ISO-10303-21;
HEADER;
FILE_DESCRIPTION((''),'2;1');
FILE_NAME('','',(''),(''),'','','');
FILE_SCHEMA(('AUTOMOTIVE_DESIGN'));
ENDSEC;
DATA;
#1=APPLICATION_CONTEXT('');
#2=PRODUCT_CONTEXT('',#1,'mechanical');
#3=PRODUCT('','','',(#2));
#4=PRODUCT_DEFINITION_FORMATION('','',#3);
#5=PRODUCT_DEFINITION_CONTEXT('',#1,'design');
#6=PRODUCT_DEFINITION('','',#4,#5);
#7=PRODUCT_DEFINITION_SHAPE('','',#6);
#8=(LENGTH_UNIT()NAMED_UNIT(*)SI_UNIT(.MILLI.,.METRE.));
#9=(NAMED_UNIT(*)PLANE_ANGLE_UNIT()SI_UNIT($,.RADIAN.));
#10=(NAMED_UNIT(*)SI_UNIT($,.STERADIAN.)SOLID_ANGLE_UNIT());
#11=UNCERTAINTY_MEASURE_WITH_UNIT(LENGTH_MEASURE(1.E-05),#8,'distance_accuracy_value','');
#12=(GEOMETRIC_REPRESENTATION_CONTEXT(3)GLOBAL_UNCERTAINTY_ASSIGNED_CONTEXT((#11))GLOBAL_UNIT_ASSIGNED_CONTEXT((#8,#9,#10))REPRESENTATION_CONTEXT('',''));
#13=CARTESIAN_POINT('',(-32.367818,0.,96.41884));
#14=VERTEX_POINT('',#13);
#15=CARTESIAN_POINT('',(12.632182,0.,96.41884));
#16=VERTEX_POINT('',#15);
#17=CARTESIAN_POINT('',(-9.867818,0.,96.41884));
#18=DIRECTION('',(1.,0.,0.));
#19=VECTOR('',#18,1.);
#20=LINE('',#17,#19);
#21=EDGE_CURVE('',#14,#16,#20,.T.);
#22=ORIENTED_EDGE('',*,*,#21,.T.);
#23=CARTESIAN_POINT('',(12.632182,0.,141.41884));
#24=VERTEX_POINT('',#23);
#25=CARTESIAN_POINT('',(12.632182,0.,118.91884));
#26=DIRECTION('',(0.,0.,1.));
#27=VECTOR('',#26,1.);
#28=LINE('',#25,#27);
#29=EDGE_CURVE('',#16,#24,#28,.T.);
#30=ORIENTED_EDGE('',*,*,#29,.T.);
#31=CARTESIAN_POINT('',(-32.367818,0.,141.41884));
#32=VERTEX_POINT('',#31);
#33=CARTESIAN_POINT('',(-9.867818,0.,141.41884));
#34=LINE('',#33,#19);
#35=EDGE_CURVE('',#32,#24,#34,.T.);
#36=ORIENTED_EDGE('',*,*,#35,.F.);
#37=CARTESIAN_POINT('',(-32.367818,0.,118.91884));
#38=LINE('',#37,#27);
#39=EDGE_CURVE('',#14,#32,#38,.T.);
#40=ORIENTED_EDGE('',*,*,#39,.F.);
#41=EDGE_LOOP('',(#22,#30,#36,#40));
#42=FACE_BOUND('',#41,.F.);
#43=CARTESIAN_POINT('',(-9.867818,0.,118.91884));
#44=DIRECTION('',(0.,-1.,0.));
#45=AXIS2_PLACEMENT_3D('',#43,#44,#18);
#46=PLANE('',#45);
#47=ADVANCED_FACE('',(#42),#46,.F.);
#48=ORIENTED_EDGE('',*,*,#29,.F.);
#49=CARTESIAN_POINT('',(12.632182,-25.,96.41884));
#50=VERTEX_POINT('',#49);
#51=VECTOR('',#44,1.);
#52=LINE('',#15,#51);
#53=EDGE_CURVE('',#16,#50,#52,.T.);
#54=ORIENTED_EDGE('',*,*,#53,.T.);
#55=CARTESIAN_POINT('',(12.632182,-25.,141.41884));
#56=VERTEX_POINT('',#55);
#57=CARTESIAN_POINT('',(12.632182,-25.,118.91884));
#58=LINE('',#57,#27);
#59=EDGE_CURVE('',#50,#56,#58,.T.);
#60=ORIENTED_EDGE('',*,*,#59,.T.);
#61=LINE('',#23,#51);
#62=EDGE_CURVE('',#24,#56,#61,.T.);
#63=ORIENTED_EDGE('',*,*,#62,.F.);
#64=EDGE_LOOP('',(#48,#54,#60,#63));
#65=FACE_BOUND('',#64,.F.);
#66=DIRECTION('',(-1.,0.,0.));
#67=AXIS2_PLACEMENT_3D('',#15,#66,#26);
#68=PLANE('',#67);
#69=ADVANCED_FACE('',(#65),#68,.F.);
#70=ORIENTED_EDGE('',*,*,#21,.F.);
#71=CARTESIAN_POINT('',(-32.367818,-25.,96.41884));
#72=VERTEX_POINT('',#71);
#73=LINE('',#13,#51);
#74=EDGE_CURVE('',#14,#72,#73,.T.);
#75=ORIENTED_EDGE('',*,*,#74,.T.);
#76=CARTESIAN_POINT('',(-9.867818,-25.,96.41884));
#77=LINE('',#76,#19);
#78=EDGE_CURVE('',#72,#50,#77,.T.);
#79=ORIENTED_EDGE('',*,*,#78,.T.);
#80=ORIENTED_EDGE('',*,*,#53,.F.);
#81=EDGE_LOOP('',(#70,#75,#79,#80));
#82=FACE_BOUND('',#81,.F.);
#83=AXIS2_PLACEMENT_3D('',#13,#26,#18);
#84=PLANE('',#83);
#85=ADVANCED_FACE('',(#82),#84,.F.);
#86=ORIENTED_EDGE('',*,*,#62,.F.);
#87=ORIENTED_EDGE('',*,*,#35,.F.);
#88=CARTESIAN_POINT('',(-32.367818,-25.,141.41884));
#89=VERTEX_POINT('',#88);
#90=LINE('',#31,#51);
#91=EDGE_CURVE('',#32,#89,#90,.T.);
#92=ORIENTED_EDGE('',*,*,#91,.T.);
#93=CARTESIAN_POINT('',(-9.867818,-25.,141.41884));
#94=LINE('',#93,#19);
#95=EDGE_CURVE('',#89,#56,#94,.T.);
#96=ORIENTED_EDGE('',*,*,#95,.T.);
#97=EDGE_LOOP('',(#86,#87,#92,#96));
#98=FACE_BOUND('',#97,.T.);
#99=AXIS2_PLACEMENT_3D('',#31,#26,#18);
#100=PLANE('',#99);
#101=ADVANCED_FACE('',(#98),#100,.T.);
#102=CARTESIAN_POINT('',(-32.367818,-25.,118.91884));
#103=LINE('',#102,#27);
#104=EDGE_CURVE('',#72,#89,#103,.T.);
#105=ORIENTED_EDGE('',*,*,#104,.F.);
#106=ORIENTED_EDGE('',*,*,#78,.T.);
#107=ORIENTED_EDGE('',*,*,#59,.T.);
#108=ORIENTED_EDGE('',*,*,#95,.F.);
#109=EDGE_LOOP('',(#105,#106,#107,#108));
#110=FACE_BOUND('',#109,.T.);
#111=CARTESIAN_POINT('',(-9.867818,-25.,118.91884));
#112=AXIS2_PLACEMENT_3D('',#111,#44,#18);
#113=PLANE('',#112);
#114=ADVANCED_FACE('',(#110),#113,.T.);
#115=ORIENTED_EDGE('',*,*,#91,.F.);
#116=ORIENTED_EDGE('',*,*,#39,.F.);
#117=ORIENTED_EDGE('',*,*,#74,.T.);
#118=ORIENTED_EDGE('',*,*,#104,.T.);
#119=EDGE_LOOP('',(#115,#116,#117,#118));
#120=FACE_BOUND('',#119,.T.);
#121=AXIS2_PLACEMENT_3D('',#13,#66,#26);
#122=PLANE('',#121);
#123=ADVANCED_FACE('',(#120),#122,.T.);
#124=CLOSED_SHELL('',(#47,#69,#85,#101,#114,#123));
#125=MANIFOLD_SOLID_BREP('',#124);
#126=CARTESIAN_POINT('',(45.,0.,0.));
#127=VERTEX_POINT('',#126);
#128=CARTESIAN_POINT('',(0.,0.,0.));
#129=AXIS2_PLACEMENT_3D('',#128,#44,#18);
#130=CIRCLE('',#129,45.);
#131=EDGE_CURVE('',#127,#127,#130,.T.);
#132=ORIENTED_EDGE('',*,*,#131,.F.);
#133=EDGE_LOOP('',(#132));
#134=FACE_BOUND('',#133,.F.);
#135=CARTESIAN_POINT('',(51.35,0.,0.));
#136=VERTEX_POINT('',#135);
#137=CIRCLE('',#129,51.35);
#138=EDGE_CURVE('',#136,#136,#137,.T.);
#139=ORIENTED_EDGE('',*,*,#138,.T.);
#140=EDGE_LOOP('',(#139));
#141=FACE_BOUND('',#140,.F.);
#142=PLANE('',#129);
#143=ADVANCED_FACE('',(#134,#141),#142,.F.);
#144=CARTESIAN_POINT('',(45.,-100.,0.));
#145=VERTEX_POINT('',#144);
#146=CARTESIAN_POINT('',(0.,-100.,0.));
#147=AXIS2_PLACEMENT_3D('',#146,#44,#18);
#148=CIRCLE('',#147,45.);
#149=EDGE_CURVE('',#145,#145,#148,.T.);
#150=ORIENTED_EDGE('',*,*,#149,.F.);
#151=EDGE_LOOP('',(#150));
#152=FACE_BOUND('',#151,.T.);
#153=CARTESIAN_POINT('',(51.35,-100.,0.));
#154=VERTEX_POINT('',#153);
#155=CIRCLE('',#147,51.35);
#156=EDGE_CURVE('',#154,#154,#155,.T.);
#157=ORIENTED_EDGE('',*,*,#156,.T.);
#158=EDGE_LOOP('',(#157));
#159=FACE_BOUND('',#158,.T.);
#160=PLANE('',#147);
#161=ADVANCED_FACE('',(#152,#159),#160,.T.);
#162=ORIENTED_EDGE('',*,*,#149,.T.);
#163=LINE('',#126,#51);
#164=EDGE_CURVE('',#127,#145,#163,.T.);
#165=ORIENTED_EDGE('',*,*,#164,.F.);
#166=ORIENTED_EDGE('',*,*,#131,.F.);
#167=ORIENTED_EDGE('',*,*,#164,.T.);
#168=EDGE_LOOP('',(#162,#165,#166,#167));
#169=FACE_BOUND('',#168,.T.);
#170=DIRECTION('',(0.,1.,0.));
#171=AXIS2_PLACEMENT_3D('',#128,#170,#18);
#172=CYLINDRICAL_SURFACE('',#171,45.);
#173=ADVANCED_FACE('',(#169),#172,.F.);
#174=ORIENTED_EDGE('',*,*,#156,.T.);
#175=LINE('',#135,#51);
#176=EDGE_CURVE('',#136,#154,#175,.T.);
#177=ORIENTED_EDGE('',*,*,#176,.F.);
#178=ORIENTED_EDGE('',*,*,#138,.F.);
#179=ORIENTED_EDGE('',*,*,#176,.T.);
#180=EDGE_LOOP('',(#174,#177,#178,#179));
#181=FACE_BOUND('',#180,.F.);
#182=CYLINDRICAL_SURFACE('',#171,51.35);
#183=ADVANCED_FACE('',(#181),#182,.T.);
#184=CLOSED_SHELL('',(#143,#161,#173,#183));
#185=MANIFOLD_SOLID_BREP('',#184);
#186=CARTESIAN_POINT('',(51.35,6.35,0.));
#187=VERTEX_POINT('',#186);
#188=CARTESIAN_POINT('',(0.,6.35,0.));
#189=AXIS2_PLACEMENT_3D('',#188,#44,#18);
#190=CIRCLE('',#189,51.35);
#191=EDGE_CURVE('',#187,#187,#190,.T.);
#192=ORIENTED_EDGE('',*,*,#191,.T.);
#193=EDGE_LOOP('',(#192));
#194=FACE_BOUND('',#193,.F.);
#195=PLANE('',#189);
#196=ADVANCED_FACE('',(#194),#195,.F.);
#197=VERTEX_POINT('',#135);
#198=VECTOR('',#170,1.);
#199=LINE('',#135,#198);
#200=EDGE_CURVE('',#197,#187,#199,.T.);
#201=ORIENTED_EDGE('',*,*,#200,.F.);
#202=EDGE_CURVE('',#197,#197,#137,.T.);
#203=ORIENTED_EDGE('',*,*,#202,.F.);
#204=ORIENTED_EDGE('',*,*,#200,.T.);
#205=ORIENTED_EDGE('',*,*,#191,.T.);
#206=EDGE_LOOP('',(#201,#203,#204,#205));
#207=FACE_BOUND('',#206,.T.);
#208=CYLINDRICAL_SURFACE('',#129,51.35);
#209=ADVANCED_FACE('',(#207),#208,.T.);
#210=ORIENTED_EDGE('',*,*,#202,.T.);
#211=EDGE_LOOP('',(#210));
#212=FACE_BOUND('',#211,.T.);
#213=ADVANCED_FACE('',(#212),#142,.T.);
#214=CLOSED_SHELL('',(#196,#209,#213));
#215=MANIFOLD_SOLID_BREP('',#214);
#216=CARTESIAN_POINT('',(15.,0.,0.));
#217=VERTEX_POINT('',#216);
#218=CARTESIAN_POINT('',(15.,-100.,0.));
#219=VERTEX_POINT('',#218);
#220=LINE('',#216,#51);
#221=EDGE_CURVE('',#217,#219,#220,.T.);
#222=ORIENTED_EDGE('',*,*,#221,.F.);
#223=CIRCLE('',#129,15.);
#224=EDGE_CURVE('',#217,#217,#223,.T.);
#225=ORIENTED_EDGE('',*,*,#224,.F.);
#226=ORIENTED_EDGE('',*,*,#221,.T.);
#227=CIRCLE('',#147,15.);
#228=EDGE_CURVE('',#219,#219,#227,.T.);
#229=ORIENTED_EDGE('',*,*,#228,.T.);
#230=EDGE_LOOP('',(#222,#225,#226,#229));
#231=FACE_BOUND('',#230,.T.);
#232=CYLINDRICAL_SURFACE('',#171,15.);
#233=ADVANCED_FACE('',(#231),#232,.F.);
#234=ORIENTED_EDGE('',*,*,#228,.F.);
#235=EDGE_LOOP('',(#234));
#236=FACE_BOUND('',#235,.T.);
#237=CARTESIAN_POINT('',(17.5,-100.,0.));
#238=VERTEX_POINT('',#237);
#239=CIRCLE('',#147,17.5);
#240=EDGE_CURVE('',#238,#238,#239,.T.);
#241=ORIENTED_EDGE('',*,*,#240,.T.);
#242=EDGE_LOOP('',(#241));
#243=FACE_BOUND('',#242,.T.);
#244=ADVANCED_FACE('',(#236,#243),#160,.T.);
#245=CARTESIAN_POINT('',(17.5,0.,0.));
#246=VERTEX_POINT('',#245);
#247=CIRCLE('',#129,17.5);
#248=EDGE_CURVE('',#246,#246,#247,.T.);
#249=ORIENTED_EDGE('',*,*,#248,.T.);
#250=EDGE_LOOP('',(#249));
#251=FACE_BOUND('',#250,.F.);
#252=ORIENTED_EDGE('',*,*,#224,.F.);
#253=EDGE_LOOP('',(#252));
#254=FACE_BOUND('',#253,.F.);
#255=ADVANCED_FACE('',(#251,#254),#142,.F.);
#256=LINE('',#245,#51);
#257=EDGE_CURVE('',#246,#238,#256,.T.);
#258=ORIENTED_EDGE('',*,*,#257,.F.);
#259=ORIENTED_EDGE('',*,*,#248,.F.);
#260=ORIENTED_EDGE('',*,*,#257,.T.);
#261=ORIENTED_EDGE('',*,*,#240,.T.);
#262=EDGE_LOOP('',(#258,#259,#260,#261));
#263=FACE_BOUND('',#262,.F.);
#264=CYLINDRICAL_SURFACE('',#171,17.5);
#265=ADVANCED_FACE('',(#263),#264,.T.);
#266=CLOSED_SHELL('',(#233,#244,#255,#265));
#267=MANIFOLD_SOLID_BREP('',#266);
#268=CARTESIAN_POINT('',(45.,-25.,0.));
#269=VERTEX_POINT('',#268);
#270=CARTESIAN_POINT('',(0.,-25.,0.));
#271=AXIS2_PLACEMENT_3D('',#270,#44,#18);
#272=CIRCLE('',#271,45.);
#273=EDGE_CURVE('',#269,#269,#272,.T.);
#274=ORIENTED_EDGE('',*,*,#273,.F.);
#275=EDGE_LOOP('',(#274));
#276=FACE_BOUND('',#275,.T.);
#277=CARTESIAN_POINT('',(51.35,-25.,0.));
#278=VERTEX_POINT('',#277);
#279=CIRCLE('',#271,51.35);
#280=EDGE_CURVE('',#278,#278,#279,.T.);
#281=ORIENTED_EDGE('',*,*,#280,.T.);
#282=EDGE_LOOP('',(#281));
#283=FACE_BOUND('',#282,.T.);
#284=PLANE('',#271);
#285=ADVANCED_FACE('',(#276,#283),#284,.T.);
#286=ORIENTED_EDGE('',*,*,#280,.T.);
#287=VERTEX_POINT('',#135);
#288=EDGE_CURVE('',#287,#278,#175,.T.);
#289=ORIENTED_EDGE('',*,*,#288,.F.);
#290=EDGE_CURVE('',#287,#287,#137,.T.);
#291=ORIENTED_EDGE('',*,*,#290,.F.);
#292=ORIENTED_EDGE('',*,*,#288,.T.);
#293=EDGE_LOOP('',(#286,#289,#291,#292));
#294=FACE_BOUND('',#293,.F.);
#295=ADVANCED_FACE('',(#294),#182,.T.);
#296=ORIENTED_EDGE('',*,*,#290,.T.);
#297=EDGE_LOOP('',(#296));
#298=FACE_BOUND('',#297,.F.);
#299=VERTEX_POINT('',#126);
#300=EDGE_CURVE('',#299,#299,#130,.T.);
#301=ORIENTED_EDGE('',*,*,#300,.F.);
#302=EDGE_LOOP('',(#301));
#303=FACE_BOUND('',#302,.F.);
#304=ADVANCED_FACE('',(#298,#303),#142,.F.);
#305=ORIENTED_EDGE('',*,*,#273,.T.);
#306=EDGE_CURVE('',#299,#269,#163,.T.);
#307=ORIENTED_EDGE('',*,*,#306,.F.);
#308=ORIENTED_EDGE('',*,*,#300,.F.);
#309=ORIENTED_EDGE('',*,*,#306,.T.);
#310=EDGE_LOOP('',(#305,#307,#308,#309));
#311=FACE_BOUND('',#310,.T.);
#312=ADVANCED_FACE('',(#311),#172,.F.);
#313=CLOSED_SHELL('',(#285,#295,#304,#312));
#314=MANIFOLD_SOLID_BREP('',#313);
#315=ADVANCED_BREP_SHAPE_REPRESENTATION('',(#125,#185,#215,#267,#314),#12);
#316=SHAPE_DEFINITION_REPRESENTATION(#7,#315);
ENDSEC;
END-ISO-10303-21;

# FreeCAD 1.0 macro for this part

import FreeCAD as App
import Part
import Sketcher
Q = App.Units.Quantity

doc = App.newDocument("Part")
body = doc.addObject("PartDesign::Body", "Body")

sketch1 = body.newObject("Sketcher::SketchObject", "Sketch")
sketch1.AttachmentSupport = (doc.getObject("XZ_Plane"), [""])
sketch1.MapMode = "FlatFace"
sketch1.addGeometry([
    Part.Circle(App.Vector(0, 0, 0), App.Vector(0, 0, 1), 18),
    Part.Circle(App.Vector(0, 0, 0), App.Vector(0, 0, 1), 15),
], False)
sketch1.addConstraint([
    Sketcher.Constraint("Coincident", 0, 3, -1, 1),
    Sketcher.Constraint("Coincident", 1, 3, -1, 1),
    Sketcher.Constraint("Diameter", 0, Q("35 mm")),
    Sketcher.Constraint("Diameter", 1, Q("30 mm")),
])
pad1 = body.newObject("PartDesign::Pad", "Pad")
pad1.Profile = sketch1
pad1.Length = 100
body2 = doc.addObject("PartDesign::Body", "Body001")

sketch2 = body2.newObject("Sketcher::SketchObject", "Sketch001")
sketch2.AttachmentSupport = (doc.getObject("XZ_Plane001"), [""])
sketch2.MapMode = "FlatFace"
sketch2.addGeometry([
    Part.Circle(App.Vector(0, 0, 0), App.Vector(0, 0, 1), 51),
    Part.Circle(App.Vector(0, 0, 0), App.Vector(0, 0, 1), 45),
], False)
sketch2.addConstraint([
    Sketcher.Constraint("Coincident", 0, 3, -1, 1),
    Sketcher.Constraint("Coincident", 1, 3, -1, 1),
    Sketcher.Constraint("Diameter", 1, Q("90 mm")),
    Sketcher.Constraint("Diameter", 0, Q("102.7 mm")),
])
pad2 = body2.newObject("PartDesign::Pad", "Pad001")
pad2.Profile = sketch2
pad2.Length = 100
body3 = doc.addObject("PartDesign::Body", "Body002")

sketch3 = body3.newObject("Sketcher::SketchObject", "Sketch002")
sketch3.AttachmentSupport = (doc.getObject("XZ_Plane002"), [""])
sketch3.MapMode = "FlatFace"
sketch3.addGeometry(Part.Circle(App.Vector(0, 0, 0), App.Vector(0, 0, 1), 51), False)
sketch3.addConstraint([
    Sketcher.Constraint("Coincident", 0, 3, -1, 1),
    Sketcher.Constraint("Diameter", 0, Q("102.7 mm")),
])
pad3 = body3.newObject("PartDesign::Pad", "Pad002")
pad3.Profile = sketch3
pad3.Length = 6.35
pad3.Reversed = True
body4 = doc.addObject("PartDesign::Body", "Body003")

sketch4 = body4.newObject("Sketcher::SketchObject", "Sketch003")
sketch4.AttachmentSupport = (doc.getObject("XZ_Plane003"), [""])
sketch4.MapMode = "FlatFace"
sketch4.addGeometry([
    Part.Circle(App.Vector(0, 0, 0), App.Vector(0, 0, 1), 51),
    Part.Circle(App.Vector(0, 0, 0), App.Vector(0, 0, 1), 45),
], False)
sketch4.addConstraint([
    Sketcher.Constraint("Coincident", 0, 3, -1, 1),
    Sketcher.Constraint("Coincident", 1, 3, -1, 1),
    Sketcher.Constraint("Diameter", 1, Q("90 mm")),
    Sketcher.Constraint("Diameter", 0, Q("102.7 mm")),
])
pad4 = body4.newObject("PartDesign::Pad", "Pad003")
pad4.Profile = sketch4
pad4.Length = 25
body5 = doc.addObject("PartDesign::Body", "Body004")

sketch5 = body5.newObject("Sketcher::SketchObject", "Sketch004")
sketch5.AttachmentSupport = (doc.getObject("XZ_Plane004"), [""])
sketch5.MapMode = "FlatFace"
sketch5.addGeometry([
    Part.LineSegment(App.Vector(-32, 141, 0), App.Vector(-32, 96, 0)),
    Part.LineSegment(App.Vector(-32, 96, 0), App.Vector(13, 96, 0)),
    Part.LineSegment(App.Vector(13, 96, 0), App.Vector(13, 141, 0)),
    Part.LineSegment(App.Vector(13, 141, 0), App.Vector(-32, 141, 0)),
], False)
sketch5.addConstraint([
    Sketcher.Constraint("Coincident", 0, 2, 1, 1),
    Sketcher.Constraint("Coincident", 1, 2, 2, 1),
    Sketcher.Constraint("Coincident", 2, 2, 3, 1),
    Sketcher.Constraint("Coincident", 3, 2, 0, 1),
    Sketcher.Constraint("Vertical", 0),
    Sketcher.Constraint("Horizontal", 1),
    Sketcher.Constraint("Vertical", 2),
    Sketcher.Constraint("Horizontal", 3),
    Sketcher.Constraint("Equal", 3, 0),
    Sketcher.Constraint("DistanceX", 1, 1, 1, 2, Q("45 mm")),
    Sketcher.Constraint("DistanceY", -1, 1, 0, 2, Q("96.41884 mm")),
    Sketcher.Constraint("DistanceX", 0, 2, -1, 1, Q("32.367818 mm")),
])
pad5 = body5.newObject("PartDesign::Pad", "Pad004")
pad5.Profile = sketch5
pad5.Length = 25

doc.recompute()
